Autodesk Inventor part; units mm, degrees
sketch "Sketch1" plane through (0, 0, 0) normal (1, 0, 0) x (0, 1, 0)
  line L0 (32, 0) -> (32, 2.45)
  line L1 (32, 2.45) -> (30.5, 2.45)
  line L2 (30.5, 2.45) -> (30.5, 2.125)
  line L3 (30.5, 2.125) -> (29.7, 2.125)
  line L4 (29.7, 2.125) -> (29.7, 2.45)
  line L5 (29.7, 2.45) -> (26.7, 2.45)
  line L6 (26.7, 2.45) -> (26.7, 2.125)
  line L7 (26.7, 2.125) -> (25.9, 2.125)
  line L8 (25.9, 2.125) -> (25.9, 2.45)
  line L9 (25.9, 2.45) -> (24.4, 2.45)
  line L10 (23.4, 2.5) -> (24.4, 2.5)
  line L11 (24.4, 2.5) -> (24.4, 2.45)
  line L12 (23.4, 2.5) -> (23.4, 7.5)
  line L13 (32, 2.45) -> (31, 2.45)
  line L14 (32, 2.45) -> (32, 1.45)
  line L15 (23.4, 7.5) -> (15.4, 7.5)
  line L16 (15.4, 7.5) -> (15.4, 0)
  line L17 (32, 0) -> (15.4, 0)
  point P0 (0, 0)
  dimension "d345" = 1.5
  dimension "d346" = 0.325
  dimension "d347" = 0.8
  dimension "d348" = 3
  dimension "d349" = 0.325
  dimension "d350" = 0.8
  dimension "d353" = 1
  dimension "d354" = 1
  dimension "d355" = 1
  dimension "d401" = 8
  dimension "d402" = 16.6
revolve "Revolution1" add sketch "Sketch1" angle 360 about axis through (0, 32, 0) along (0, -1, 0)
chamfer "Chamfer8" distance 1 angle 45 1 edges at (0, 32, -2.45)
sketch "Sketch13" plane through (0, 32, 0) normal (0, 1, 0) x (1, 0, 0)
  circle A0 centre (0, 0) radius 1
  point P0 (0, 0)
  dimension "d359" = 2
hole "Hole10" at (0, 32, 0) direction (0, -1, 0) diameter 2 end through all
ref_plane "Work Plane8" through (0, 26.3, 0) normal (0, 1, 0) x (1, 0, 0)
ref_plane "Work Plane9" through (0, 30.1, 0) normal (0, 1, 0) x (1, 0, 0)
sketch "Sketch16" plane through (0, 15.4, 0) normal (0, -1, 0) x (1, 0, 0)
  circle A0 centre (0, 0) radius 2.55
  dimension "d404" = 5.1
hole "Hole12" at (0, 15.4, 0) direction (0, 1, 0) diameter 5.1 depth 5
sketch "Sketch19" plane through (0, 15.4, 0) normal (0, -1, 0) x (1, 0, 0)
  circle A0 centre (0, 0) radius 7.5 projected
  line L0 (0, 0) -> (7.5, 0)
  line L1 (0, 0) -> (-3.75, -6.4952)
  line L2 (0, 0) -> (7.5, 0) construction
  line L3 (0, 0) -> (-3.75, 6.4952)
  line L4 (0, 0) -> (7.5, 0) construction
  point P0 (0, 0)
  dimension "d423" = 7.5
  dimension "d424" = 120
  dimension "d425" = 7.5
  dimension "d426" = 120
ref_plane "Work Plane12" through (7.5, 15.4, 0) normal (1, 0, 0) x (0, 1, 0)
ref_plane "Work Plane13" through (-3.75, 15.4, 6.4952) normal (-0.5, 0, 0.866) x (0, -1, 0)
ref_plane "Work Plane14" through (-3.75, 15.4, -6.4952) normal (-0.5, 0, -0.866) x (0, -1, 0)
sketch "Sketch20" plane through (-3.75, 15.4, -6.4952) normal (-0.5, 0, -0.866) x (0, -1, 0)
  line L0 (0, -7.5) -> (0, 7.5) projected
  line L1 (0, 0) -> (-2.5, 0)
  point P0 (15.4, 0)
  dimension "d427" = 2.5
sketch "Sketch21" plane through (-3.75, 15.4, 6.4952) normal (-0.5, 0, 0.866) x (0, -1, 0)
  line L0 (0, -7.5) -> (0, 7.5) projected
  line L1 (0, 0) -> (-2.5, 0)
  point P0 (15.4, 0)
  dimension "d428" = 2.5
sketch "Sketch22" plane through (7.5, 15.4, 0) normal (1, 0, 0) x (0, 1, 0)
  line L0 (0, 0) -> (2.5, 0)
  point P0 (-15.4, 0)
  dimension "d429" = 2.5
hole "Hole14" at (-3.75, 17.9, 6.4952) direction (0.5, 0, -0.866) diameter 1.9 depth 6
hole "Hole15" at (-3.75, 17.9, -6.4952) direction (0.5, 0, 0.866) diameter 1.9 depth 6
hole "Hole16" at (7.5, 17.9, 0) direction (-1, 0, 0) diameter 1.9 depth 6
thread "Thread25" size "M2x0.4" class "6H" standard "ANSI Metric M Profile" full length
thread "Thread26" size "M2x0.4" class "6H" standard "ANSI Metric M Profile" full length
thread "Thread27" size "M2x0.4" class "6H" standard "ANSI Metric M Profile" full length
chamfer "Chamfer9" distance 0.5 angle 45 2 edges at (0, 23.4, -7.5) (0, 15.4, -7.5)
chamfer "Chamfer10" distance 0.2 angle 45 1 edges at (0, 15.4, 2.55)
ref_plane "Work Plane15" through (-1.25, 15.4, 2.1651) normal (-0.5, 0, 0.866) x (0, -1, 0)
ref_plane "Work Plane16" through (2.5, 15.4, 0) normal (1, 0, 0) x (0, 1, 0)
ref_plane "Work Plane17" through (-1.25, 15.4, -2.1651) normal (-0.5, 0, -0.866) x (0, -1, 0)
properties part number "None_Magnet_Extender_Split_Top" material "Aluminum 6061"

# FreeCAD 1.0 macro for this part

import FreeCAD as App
import Part
import Sketcher

V = App.Vector


def edges_at(feature, points):
    """Names of the edges that pass closest to the given points."""
    edges = feature.Shape.Edges
    near = lambda p: min(range(len(edges)), key=lambda i: edges[i].distToShape(Part.Vertex(*p))[0])
    return sorted({f"Edge{near(p) + 1}" for p in points})

doc = App.newDocument("Part")
body = doc.addObject("PartDesign::Body", "Body")

# Sketch on YZ plane
sketch1 = doc.addObject("Sketcher::SketchObject", "Sketch")
body.addObject(sketch1)
sketch1.AttachmentSupport = (doc.YZ_Plane, [""])
sketch1.MapMode = "FlatFace"
sketch1.addGeometry([
    Part.LineSegment(V(15.4, 0, 0), V(32, 0, 0)),  # 0
    Part.LineSegment(V(32, 0, 0), V(32, 2.45, 0)),  # 1
    Part.LineSegment(V(32, 2.45, 0), V(30.5, 2.45, 0)),  # 2
    Part.LineSegment(V(30.5, 2.45, 0), V(30.5, 2.125, 0)),  # 3
    Part.LineSegment(V(30.5, 2.125, 0), V(29.7, 2.125, 0)),  # 4
    Part.LineSegment(V(29.7, 2.125, 0), V(29.7, 2.45, 0)),  # 5
    Part.LineSegment(V(29.7, 2.45, 0), V(26.7, 2.45, 0)),  # 6
    Part.LineSegment(V(26.7, 2.45, 0), V(26.7, 2.125, 0)),  # 7
    Part.LineSegment(V(26.7, 2.125, 0), V(25.9, 2.125, 0)),  # 8
    Part.LineSegment(V(25.9, 2.125, 0), V(25.9, 2.45, 0)),  # 9
    Part.LineSegment(V(25.9, 2.45, 0), V(24.4, 2.45, 0)),  # 10
    Part.LineSegment(V(24.4, 2.45, 0), V(24.4, 2.5, 0)),  # 11
    Part.LineSegment(V(24.4, 2.5, 0), V(23.4, 2.5, 0)),  # 12
    Part.LineSegment(V(23.4, 2.5, 0), V(23.4, 7.5, 0)),  # 13
    Part.LineSegment(V(23.4, 7.5, 0), V(15.4, 7.5, 0)),  # 14
    Part.LineSegment(V(15.4, 7.5, 0), V(15.4, 0, 0)),  # 15
], False)
sketch1.addConstraint([
    Sketcher.Constraint("Coincident", 0, 2, 1, 1),
    Sketcher.Constraint("Coincident", 1, 2, 2, 1),
    Sketcher.Constraint("Coincident", 2, 2, 3, 1),
    Sketcher.Constraint("Coincident", 3, 2, 4, 1),
    Sketcher.Constraint("Coincident", 4, 2, 5, 1),
    Sketcher.Constraint("Coincident", 5, 2, 6, 1),
    Sketcher.Constraint("Coincident", 6, 2, 7, 1),
    Sketcher.Constraint("Coincident", 7, 2, 8, 1),
    Sketcher.Constraint("Coincident", 8, 2, 9, 1),
    Sketcher.Constraint("Coincident", 9, 2, 10, 1),
    Sketcher.Constraint("Coincident", 10, 2, 11, 1),
    Sketcher.Constraint("Coincident", 11, 2, 12, 1),
    Sketcher.Constraint("Coincident", 12, 2, 13, 1),
    Sketcher.Constraint("Coincident", 13, 2, 14, 1),
    Sketcher.Constraint("Coincident", 14, 2, 15, 1),
    Sketcher.Constraint("Coincident", 15, 2, 0, 1),
    Sketcher.Constraint("Horizontal", 0),
    Sketcher.Constraint("Vertical", 1),
    Sketcher.Constraint("Horizontal", 2),
    Sketcher.Constraint("Vertical", 3),
    Sketcher.Constraint("Horizontal", 4),
    Sketcher.Constraint("Vertical", 5),
    Sketcher.Constraint("Horizontal", 6),
    Sketcher.Constraint("Vertical", 7),
    Sketcher.Constraint("Horizontal", 8),
    Sketcher.Constraint("Vertical", 9),
    Sketcher.Constraint("Horizontal", 10),
    Sketcher.Constraint("Vertical", 11),
    Sketcher.Constraint("Horizontal", 12),
    Sketcher.Constraint("Vertical", 13),
    Sketcher.Constraint("Horizontal", 14),
    Sketcher.Constraint("Vertical", 15),
    Sketcher.Constraint("PointOnObject", 0, 2, -1),
    Sketcher.Constraint("Horizontal", 2, 2, 5, 2),
    Sketcher.Constraint("Horizontal", 4, 2, 7, 2),
    Sketcher.Constraint("Horizontal", 6, 2, 9, 2),
    Sketcher.Constraint("Equal", 4, 8),
    Sketcher.Constraint("Equal", 2, 10),
    Sketcher.Constraint("DistanceX", 6, 2, 6, 1, 3.0),
    Sketcher.Constraint("DistanceX", 12, 2, 12, 1, 1.0),
    Sketcher.Constraint("DistanceX", 14, 2, 14, 1, 8.0),
    Sketcher.Constraint("DistanceX", 0, 1, 0, 2, 16.6),
    Sketcher.Constraint("DistanceX", 2, 2, 2, 1, 1.5),
    Sketcher.Constraint("DistanceY", 3, 2, 3, 1, 0.325),
    Sketcher.Constraint("DistanceY", 13, 1, 13, 2, 5.0),
    Sketcher.Constraint("DistanceY", 15, 2, 15, 1, 7.5),
    Sketcher.Constraint("DistanceX", -1, 1, 0, 2, 32.0),
    Sketcher.Constraint("DistanceY", 1, 1, 1, 2, 2.45),
])
revolution = doc.addObject("PartDesign::Revolution", "Revolution")
body.addObject(revolution)
revolution.Profile = sketch1
revolution.ReferenceAxis = (sketch1, ["H_Axis"])
revolution.Angle = 360
doc.recompute()

chamfer = doc.addObject("PartDesign::Chamfer", "Chamfer")
body.addObject(chamfer)
chamfer.Base = (revolution, edges_at(revolution, [(0, 32, -2.45)]))
chamfer.Size = 1

# Sketch on XZ plane
sketch2 = doc.addObject("Sketcher::SketchObject", "Sketch001")
body.addObject(sketch2)
sketch2.AttachmentSupport = (doc.XZ_Plane, [""])
sketch2.MapMode = "FlatFace"
sketch2.AttachmentOffset = App.Placement(V(0, 0, -32), App.Rotation())
sketch2.addGeometry(Part.Circle(V(0, 0, 0), V(0, 0, 1), 1), False)
sketch2.addConstraint([
    Sketcher.Constraint("Coincident", 0, 3, -1, 1),
    Sketcher.Constraint("Diameter", 0, 2.0),
])
doc.recompute()
hole = doc.addObject("PartDesign::Hole", "Hole")
body.addObject(hole)
hole.Profile = sketch2
hole.ThreadType = "None"
hole.Diameter = 2
hole.DepthType = "ThroughAll"
hole.Reversed = True

# Sketch on XZ plane
sketch3 = doc.addObject("Sketcher::SketchObject", "Sketch002")
body.addObject(sketch3)
sketch3.AttachmentSupport = (doc.XZ_Plane, [""])
sketch3.MapMode = "FlatFace"
sketch3.AttachmentOffset = App.Placement(V(0, 0, -15.4), App.Rotation())
sketch3.addGeometry(Part.Circle(V(0, 0, 0), V(0, 0, 1), 2.5), False)
sketch3.addConstraint([
    Sketcher.Constraint("Coincident", 0, 3, -1, 1),
    Sketcher.Constraint("Diameter", 0, 5.1),
])
doc.recompute()
hole2 = doc.addObject("PartDesign::Hole", "Hole001")
body.addObject(hole2)
hole2.Profile = sketch3
hole2.ThreadType = "None"
hole2.Diameter = 5.1
hole2.DepthType = "Dimension"
hole2.Depth = 5
hole2.DrillPoint = "Flat"

# Sketch on an angled plane
sketch4 = doc.addObject("Sketcher::SketchObject", "Sketch003")
body.addObject(sketch4)
sketch4.Placement = App.Placement(V(-3.750004, 0, 6.495198), App.Rotation(V(0.866025404, 0, 0.5), V(0, 1, 0), V(-0.5, 0, 0.866025404), "ZXY"))
sketch4.addGeometry(Part.Circle(V(0, 17.9, 0), V(0, 0, 1), 0.9), False)
sketch4.addConstraint([
    Sketcher.Constraint("PointOnObject", 0, 3, -2),
    Sketcher.Constraint("Diameter", 0, 1.9),
    Sketcher.Constraint("DistanceY", -1, 1, 0, 3, 17.9),
])
doc.recompute()
hole3 = doc.addObject("PartDesign::Hole", "Hole002")
body.addObject(hole3)
hole3.Profile = sketch4
hole3.ThreadType = "None"
hole3.Diameter = 1.9
hole3.DepthType = "Dimension"
hole3.Depth = 6
hole3.DrillPoint = "Flat"

# Sketch on an angled plane
sketch5 = doc.addObject("Sketcher::SketchObject", "Sketch004")
body.addObject(sketch5)
sketch5.Placement = App.Placement(V(-3.750004, 0, -6.495198), App.Rotation(V(-0.866025404, 0, 0.5), V(0, 1, 0), V(-0.5, 0, -0.866025404), "ZXY"))
sketch5.addGeometry(Part.Circle(V(0, 17.9, 0), V(0, 0, 1), 0.9), False)
sketch5.addConstraint([
    Sketcher.Constraint("PointOnObject", 0, 3, -2),
    Sketcher.Constraint("Diameter", 0, 1.9),
    Sketcher.Constraint("DistanceY", -1, 1, 0, 3, 17.9),
])
doc.recompute()
hole4 = doc.addObject("PartDesign::Hole", "Hole003")
body.addObject(hole4)
hole4.Profile = sketch5
hole4.ThreadType = "None"
hole4.Diameter = 1.9
hole4.DepthType = "Dimension"
hole4.Depth = 6
hole4.DrillPoint = "Flat"

# Sketch on YZ plane
sketch6 = doc.addObject("Sketcher::SketchObject", "Sketch005")
body.addObject(sketch6)
sketch6.AttachmentSupport = (doc.YZ_Plane, [""])
sketch6.MapMode = "FlatFace"
sketch6.AttachmentOffset = App.Placement(V(0, 0, 7.5), App.Rotation())
sketch6.addGeometry(Part.Circle(V(17.9, 0, 0), V(0, 0, 1), 0.9), False)
sketch6.addConstraint([
    Sketcher.Constraint("PointOnObject", 0, 3, -1),
    Sketcher.Constraint("Diameter", 0, 1.9),
    Sketcher.Constraint("DistanceX", -1, 1, 0, 3, 17.9),
])
doc.recompute()
hole5 = doc.addObject("PartDesign::Hole", "Hole004")
body.addObject(hole5)
hole5.Profile = sketch6
hole5.ThreadType = "None"
hole5.Diameter = 1.9
hole5.DepthType = "Dimension"
hole5.Depth = 6
hole5.DrillPoint = "Flat"
doc.recompute()

chamfer2 = doc.addObject("PartDesign::Chamfer", "Chamfer001")
body.addObject(chamfer2)
chamfer2.Base = (hole5, edges_at(hole5, [(0, 23.4, -7.5), (0, 15.4, -7.5)]))
chamfer2.Size = 0.5
doc.recompute()

chamfer3 = doc.addObject("PartDesign::Chamfer", "Chamfer002")
body.addObject(chamfer3)
chamfer3.Base = (chamfer2, edges_at(chamfer2, [(0, 15.4, 2.55)]))
chamfer3.Size = 0.2

doc.recompute()
